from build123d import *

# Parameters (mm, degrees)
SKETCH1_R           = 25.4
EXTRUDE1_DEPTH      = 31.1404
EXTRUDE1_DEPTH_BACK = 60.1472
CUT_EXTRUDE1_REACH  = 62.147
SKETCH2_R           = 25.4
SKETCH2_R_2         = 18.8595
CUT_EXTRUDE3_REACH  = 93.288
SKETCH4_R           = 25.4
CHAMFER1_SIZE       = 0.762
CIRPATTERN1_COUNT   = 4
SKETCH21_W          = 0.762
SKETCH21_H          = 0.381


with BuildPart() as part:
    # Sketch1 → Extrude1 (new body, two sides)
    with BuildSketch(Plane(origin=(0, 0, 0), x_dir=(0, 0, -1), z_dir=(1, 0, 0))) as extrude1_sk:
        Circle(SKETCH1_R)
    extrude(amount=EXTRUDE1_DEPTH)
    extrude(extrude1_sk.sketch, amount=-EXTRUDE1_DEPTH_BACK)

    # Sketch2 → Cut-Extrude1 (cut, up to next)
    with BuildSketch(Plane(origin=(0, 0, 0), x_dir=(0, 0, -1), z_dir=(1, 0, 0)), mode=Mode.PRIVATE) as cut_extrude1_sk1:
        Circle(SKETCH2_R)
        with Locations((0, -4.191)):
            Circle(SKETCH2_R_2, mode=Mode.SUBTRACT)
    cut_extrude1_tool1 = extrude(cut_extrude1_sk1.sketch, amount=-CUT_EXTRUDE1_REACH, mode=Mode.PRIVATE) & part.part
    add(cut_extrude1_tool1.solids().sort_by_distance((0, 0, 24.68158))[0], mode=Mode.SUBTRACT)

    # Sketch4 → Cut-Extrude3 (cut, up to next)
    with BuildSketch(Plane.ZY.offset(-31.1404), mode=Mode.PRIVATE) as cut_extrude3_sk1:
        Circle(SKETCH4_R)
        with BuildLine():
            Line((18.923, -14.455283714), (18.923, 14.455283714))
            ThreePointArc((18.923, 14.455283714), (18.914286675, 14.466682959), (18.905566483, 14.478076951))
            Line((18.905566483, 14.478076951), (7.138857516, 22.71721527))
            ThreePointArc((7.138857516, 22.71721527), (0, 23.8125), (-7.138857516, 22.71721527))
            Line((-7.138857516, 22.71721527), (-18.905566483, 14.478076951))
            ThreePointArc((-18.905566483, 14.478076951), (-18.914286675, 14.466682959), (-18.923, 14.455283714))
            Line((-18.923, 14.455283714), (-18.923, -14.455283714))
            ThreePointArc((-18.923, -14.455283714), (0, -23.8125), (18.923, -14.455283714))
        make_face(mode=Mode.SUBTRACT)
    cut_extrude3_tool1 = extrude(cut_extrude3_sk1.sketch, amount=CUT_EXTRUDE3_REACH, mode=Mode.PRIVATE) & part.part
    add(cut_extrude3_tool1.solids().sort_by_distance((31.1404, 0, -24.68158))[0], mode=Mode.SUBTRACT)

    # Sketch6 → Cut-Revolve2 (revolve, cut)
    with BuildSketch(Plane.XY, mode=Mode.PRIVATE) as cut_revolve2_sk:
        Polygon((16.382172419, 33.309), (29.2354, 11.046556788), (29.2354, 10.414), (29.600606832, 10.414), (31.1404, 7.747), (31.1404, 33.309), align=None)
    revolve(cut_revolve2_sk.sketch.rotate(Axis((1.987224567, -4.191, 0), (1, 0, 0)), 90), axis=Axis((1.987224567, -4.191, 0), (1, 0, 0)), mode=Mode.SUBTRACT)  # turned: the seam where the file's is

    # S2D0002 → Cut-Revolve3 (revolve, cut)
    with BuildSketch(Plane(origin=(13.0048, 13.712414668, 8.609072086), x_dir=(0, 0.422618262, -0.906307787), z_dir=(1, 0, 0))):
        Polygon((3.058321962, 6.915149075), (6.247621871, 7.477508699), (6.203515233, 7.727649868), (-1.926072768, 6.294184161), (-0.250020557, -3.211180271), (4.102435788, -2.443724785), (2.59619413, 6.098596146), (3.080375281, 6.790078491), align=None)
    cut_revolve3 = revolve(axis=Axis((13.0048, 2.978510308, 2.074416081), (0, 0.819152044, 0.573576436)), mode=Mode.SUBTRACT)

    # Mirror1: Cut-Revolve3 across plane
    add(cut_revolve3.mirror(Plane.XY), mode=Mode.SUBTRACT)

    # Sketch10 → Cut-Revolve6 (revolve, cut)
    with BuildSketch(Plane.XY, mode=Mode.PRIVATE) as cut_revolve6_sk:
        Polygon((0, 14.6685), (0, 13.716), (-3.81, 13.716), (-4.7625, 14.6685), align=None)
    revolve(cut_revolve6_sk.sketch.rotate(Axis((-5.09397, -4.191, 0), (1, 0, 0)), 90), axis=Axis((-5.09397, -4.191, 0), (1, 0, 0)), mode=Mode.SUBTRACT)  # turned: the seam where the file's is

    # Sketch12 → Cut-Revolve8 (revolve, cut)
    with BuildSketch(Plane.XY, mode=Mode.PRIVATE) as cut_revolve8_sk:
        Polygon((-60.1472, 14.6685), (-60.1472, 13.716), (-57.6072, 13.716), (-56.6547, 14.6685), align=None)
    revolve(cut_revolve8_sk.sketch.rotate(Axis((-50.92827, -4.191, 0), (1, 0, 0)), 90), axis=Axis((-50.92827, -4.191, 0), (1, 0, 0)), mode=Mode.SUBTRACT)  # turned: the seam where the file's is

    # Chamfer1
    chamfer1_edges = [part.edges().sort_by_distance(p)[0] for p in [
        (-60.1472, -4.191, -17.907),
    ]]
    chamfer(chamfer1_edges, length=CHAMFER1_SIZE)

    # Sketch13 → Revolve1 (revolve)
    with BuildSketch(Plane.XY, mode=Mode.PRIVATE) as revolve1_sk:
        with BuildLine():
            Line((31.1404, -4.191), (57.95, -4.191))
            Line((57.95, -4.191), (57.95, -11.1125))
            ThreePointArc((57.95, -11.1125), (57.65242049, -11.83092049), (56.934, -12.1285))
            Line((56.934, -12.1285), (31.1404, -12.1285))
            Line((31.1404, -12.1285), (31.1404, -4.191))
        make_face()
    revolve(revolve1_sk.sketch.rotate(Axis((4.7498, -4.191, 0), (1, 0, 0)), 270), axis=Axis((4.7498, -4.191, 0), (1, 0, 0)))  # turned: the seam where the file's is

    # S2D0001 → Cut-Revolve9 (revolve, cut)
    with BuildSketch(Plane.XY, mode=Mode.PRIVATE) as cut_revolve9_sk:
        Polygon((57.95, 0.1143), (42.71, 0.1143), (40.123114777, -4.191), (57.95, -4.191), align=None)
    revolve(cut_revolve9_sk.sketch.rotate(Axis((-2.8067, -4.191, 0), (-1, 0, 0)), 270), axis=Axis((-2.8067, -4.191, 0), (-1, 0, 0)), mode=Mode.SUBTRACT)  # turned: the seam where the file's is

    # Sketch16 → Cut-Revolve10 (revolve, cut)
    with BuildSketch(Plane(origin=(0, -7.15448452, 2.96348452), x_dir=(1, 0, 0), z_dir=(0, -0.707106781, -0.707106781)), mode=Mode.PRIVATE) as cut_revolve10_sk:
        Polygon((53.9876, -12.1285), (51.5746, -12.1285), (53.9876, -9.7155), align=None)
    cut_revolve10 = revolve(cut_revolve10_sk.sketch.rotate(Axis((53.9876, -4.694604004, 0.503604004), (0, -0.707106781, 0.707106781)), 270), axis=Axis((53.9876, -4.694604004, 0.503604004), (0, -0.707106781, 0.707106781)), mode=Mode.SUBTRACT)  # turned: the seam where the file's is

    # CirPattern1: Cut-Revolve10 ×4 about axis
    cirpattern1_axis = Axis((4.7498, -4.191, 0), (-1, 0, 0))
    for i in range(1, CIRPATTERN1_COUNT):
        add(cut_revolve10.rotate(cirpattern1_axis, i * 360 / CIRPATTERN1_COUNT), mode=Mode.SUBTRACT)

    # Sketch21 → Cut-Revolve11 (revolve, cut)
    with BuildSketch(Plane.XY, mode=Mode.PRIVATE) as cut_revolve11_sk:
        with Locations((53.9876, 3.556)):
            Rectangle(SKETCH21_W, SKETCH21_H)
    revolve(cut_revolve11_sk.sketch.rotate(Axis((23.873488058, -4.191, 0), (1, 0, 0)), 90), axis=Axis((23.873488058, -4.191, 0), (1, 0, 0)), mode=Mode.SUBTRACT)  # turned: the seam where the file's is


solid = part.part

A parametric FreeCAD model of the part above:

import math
import FreeCAD as App
import Part
import Sketcher
Q = App.Units.Quantity


def edges_at(feature, points):
    """Names of the edges that pass closest to the given points."""
    edges = feature.Shape.Edges
    near = lambda p: min(range(len(edges)), key=lambda i: edges[i].distToShape(Part.Vertex(*p))[0])
    return sorted({f"Edge{near(p) + 1}" for p in points})

doc = App.newDocument("Part")
params = doc.addObject("Spreadsheet::Sheet", "Params")
for row, (alias, value) in enumerate([
    ("sketch1_diameter", "2 in"),
    ("pad1_length", "1.226 in"),
    ("pad1_length2", "2.368 in"),
    ("sketch2_diameter", "2 in"),
    ("sketch2_diameter2", "1.485 in"),
    ("sketch3_diameter", "2 in"),
    ("sketch3_radius", "0.9375 in"),
    ("groove_angle", "360 deg"),
    ("sketch5_length", "0.01 in"),
    ("sketch5_length2", "0.38 in"),
    ("sketch5_length3", "0.325 in"),
    ("sketch5_length4", "0.174 in"),
    ("sketch5_length5", "0.005 in"),
    ("groove2_angle", "360 deg"),
    ("sketch6_width", "0.15 in"),
    ("sketch6_width2", "0.1875 in"),
    ("groove3_angle", "360 deg"),
    ("sketch7_width", "0.1 in"),
    ("groove4_angle", "360 deg"),
    ("chamfer_size", "0.03 in"),
    ("sketch8_radius", "0.04 in"),
    ("sketch8_height", "0.3125 in"),
    ("revolution_angle", "360 deg"),
    ("sketch9_width", "0.6 in"),
    ("groove5_angle", "360 deg"),
    ("sketch10_width", "0.095 in"),
    ("groove6_angle", "360 deg"),
    ("sketch11_width", "0.03 in"),
    ("sketch11_height", "0.015 in"),
    ("groove7_angle", "360 deg"),
], start=1):
    params.set(f"A{row}", alias)
    params.set(f"B{row}", "=" + value)
    params.setAlias(f"B{row}", alias)

body = doc.addObject("PartDesign::Body", "Body")

sketch1 = body.newObject("Sketcher::SketchObject", "Sketch")
sketch1.AttachmentSupport = (doc.getObject("YZ_Plane"), [""])
sketch1.MapMode = "FlatFace"
sketch1.addGeometry(Part.Circle(App.Vector(0, 0, 0), App.Vector(0, 0, 1), 25.4), False)
sketch1.addConstraint([
    Sketcher.Constraint("Coincident", 0, 3, -1, 1),
    Sketcher.Constraint("Diameter", 0, Q("2 in")),
])
sketch1.setExpression("Constraints[1]", "Params.sketch1_diameter")
pad1 = body.newObject("PartDesign::Pad", "Pad")
pad1.Profile = sketch1
pad1.Type = "TwoLengths"
pad1.setExpression("Length", "Params.pad1_length")
pad1.setExpression("Length2", "Params.pad1_length2")

sketch2 = body.newObject("Sketcher::SketchObject", "Sketch001")
sketch2.AttachmentSupport = (doc.getObject("YZ_Plane"), [""])
sketch2.MapMode = "FlatFace"
sketch2.addGeometry([
    Part.Circle(App.Vector(0, 0, 0), App.Vector(0, 0, 1), 25.4),
    Part.Circle(App.Vector(-4.191, 0, 0), App.Vector(0, 0, 1), 18.8595),
], False)
sketch2.addConstraint([
    Sketcher.Constraint("Coincident", 0, 3, -1, 1),
    Sketcher.Constraint("PointOnObject", 1, 3, -1),
    Sketcher.Constraint("Diameter", 0, Q("2 in")),
    Sketcher.Constraint("Diameter", 1, Q("1.485 in")),
    Sketcher.Constraint("DistanceX", 1, 3, -1, 1, Q("0.165 in")),
])
sketch2.setExpression("Constraints[2]", "Params.sketch2_diameter")
sketch2.setExpression("Constraints[3]", "Params.sketch2_diameter2")
pocket1 = body.newObject("PartDesign::Pocket", "Pocket")
pocket1.Profile = sketch2
pocket1.Type = "UpToFirst"

sketch3 = body.newObject("Sketcher::SketchObject", "Sketch002")
sketch3.AttachmentSupport = (doc.getObject("YZ_Plane"), [""])
sketch3.MapMode = "FlatFace"
sketch3.AttachmentOffset = App.Placement(App.Vector(0, 0, 1.226 * 25.4), App.Rotation())
sketch3.addGeometry([
    Part.Circle(App.Vector(0, 0, 0), App.Vector(0, 0, 1), 25.4),
    Part.LineSegment(App.Vector(14.455284, 18.923, 0), App.Vector(-14.455284, 18.923, 0)),
    Part.ArcOfCircle(Part.Circle(App.Vector(0, 0, 0), App.Vector(0, 0, 1), 23.8125), math.radians(127.376217), math.radians(232.623783)),
    Part.LineSegment(App.Vector(-14.455284, -18.923, 0), App.Vector(14.455284, -18.923, 0)),
    Part.ArcOfCircle(Part.Circle(App.Vector(0.000919, -0.001202, 0), App.Vector(0, 0, 1), 23.810987), math.radians(-52.623785), math.radians(-52.554734)),
    Part.LineSegment(App.Vector(14.478077, -18.905566, 0), App.Vector(22.717215, -7.138858, 0)),
    Part.ArcOfCircle(Part.Circle(App.Vector(0, 0, 0), App.Vector(0, 0, 1), 23.8125), math.radians(-17.445263), math.radians(17.445263)),
    Part.LineSegment(App.Vector(22.717215, 7.138858, 0), App.Vector(14.478077, 18.905566, 0)),
    Part.ArcOfCircle(Part.Circle(App.Vector(0.000919, 0.001202, 0), App.Vector(0, 0, 1), 23.810987), math.radians(52.554734), math.radians(52.623785)),
], False)
sketch3.addConstraint([
    Sketcher.Constraint("Coincident", 1, 2, 2, 1),
    Sketcher.Constraint("Coincident", 2, 2, 3, 1),
    Sketcher.Constraint("Coincident", 3, 2, 4, 1),
    Sketcher.Constraint("Coincident", 4, 2, 5, 1),
    Sketcher.Constraint("Coincident", 5, 2, 6, 1),
    Sketcher.Constraint("Coincident", 6, 2, 7, 1),
    Sketcher.Constraint("Coincident", 7, 2, 8, 1),
    Sketcher.Constraint("Coincident", 8, 2, 1, 1),
    Sketcher.Constraint("Horizontal", 1),
    Sketcher.Constraint("Horizontal", 3),
    Sketcher.Constraint("Coincident", 0, 3, -1, 1),
    Sketcher.Constraint("Coincident", 2, 3, -1, 1),
    Sketcher.Constraint("Coincident", 6, 3, -1, 1),
    Sketcher.Constraint("Equal", 2, 6),
    Sketcher.Constraint("Equal", 4, 8),
    Sketcher.Constraint("Symmetric", 1, 2, 3, 2, -1, 1),
    Sketcher.Constraint("Symmetric", 4, 3, 8, 3, -1),
    Sketcher.Constraint("Vertical", 5, 2, 6, 2),
    Sketcher.Constraint("Vertical", 4, 2, 7, 2),
    Sketcher.Constraint("Diameter", 0, Q("2 in")),
    Sketcher.Constraint("Angle", 5, Q("55 deg")),
    Sketcher.Constraint("Radius", 2, Q("0.9375 in")),
    Sketcher.Constraint("DistanceY", -1, 1, 1, 2, Q("0.745 in")),
    Sketcher.Constraint("Radius", 4, 23.810987),
    Sketcher.Constraint("Distance", 5, 14.364499),
    Sketcher.Constraint("DistanceY", 4, 3, -1, 1, 0.001202),
])
sketch3.setExpression("Constraints[19]", "Params.sketch3_diameter")
sketch3.setExpression("Constraints[21]", "Params.sketch3_radius")
pocket2 = body.newObject("PartDesign::Pocket", "Pocket001")
pocket2.Profile = sketch3
pocket2.Type = "UpToFirst"

sketch4 = body.newObject("Sketcher::SketchObject", "Sketch003")
sketch4.AttachmentSupport = (doc.getObject("XY_Plane"), [""])
sketch4.MapMode = "FlatFace"
sketch4.addGeometry([
    Part.LineSegment(App.Vector(16.382172, 33.309, 0), App.Vector(29.2354, 11.046557, 0)),
    Part.LineSegment(App.Vector(29.2354, 11.046557, 0), App.Vector(29.2354, 10.414, 0)),
    Part.LineSegment(App.Vector(29.2354, 10.414, 0), App.Vector(29.600607, 10.414, 0)),
    Part.LineSegment(App.Vector(29.600607, 10.414, 0), App.Vector(31.1404, 7.747, 0)),
    Part.LineSegment(App.Vector(31.1404, 7.747, 0), App.Vector(31.1404, 33.309, 0)),
    Part.LineSegment(App.Vector(31.1404, 33.309, 0), App.Vector(16.382172, 33.309, 0)),
], False)
sketch4.addGeometry(Part.LineSegment(App.Vector(16.382172, -4.191, 0), App.Vector(31.1404, -4.191, 0)), True)
sketch4.addConstraint([
    Sketcher.Constraint("Coincident", 0, 2, 1, 1),
    Sketcher.Constraint("Coincident", 1, 2, 2, 1),
    Sketcher.Constraint("Coincident", 2, 2, 3, 1),
    Sketcher.Constraint("Coincident", 3, 2, 4, 1),
    Sketcher.Constraint("Coincident", 4, 2, 5, 1),
    Sketcher.Constraint("Coincident", 5, 2, 0, 1),
    Sketcher.Constraint("Vertical", 1),
    Sketcher.Constraint("Horizontal", 2),
    Sketcher.Constraint("Vertical", 4),
    Sketcher.Constraint("Horizontal", 5),
    Sketcher.Constraint("Horizontal", 6),
    Sketcher.Constraint("Parallel", 0, 3),
    Sketcher.Constraint("Vertical", 5, 2, 6, 1),
    Sketcher.Constraint("Vertical", 4, 2, 6, 2),
    Sketcher.Constraint("Angle", 0, Q("-60 deg")),
    Sketcher.Constraint("DistanceY", -1, 1, 1, 2, Q("0.41 in")),
    Sketcher.Constraint("DistanceY", 6, 1, 3, 2, Q("0.47 in")),
    Sketcher.Constraint("DistanceX", -1, 1, 0, 2, Q("1.151 in")),
    Sketcher.Constraint("DistanceX", -1, 1, 3, 2, Q("1.226 in")),
    Sketcher.Constraint("DistanceY", -1, 1, 3, 2, Q("0.305 in")),
    Sketcher.Constraint("DistanceY", 4, 1, 4, 2, 25.562),
    Sketcher.Constraint("DistanceX", 5, 2, 5, 1, 14.758228),
])
groove = body.newObject("PartDesign::Groove", "Groove")
groove.Profile = sketch4
groove.ReferenceAxis = (sketch4, ["Axis0"])
groove.setExpression("Angle", "Params.groove_angle")

sketch5 = body.newObject("Sketcher::SketchObject", "Sketch004")
sketch5.AttachmentSupport = (doc.getObject("YZ_Plane"), [""])
sketch5.MapMode = "FlatFace"
sketch5.AttachmentOffset = App.Placement(App.Vector(0, 0, 0.512 * 25.4), App.Rotation())
sketch5.addGeometry([
    Part.LineSegment(App.Vector(21.272171, 8.759759, 0), App.Vector(23.129698, 6.106935, 0)),
    Part.LineSegment(App.Vector(23.129698, 6.106935, 0), App.Vector(23.337763, 6.252624, 0)),
    Part.LineSegment(App.Vector(23.337763, 6.252624, 0), App.Vector(18.602889, 13.014724, 0)),
    Part.LineSegment(App.Vector(18.602889, 13.014724, 0), App.Vector(10.696434, 7.478564, 0)),
    Part.LineSegment(App.Vector(10.696434, 7.478564, 0), App.Vector(13.231412, 3.85824, 0)),
    Part.LineSegment(App.Vector(13.231412, 3.85824, 0), App.Vector(20.336819, 8.833499, 0)),
    Part.LineSegment(App.Vector(20.336819, 8.833499, 0), App.Vector(21.168139, 8.686915, 0)),
    Part.LineSegment(App.Vector(21.168139, 8.686915, 0), App.Vector(21.272171, 8.759759, 0)),
], False)
sketch5.addGeometry(Part.LineSegment(App.Vector(10.696434, 7.478564, 0), App.Vector(18.602889, 13.014724, 0)), True)
sketch5.addConstraint([
    Sketcher.Constraint("Coincident", 0, 2, 1, 1),
    Sketcher.Constraint("Coincident", 1, 2, 2, 1),
    Sketcher.Constraint("Coincident", 2, 2, 3, 1),
    Sketcher.Constraint("Coincident", 3, 2, 4, 1),
    Sketcher.Constraint("Coincident", 4, 2, 5, 1),
    Sketcher.Constraint("Coincident", 5, 2, 6, 1),
    Sketcher.Constraint("Coincident", 6, 2, 7, 1),
    Sketcher.Constraint("Coincident", 7, 2, 0, 1),
    Sketcher.Constraint("Coincident", 8, 1, 3, 2),
    Sketcher.Constraint("Coincident", 8, 2, 2, 2),
    Sketcher.Constraint("Perpendicular", 0, 1),
    Sketcher.Constraint("Perpendicular", 1, 2),
    Sketcher.Constraint("Perpendicular", 2, 3),
    Sketcher.Constraint("Perpendicular", 3, 4),
    Sketcher.Constraint("Perpendicular", 4, 5),
    Sketcher.Constraint("Parallel", 5, 7),
    Sketcher.Constraint("Angle", 0, Q("-55 deg")),
    Sketcher.Constraint("Angle", 6, Q("-10 deg")),
    Sketcher.Constraint("Distance", 1, Q("0.01 in")),
    Sketcher.Constraint("Distance", 3, Q("0.38 in")),
    Sketcher.Constraint("Distance", 2, Q("0.325 in")),
    Sketcher.Constraint("Distance", 4, Q("0.174 in")),
    Sketcher.Constraint("Distance", 7, Q("0.005 in")),
    Sketcher.Constraint("Distance", 0, Q("0.1275 in")),
    Sketcher.Constraint("DistanceX", -1, 1, 0, 2, 23.129698),
    Sketcher.Constraint("DistanceY", -1, 1, 5, 2, 8.833499),
])
sketch5.setExpression("Constraints[18]", "Params.sketch5_length")
sketch5.setExpression("Constraints[19]", "Params.sketch5_length2")
sketch5.setExpression("Constraints[20]", "Params.sketch5_length3")
sketch5.setExpression("Constraints[21]", "Params.sketch5_length4")
sketch5.setExpression("Constraints[22]", "Params.sketch5_length5")
groove2 = body.newObject("PartDesign::Groove", "Groove001")
groove2.Profile = sketch5
groove2.ReferenceAxis = (sketch5, ["Axis0"])
groove2.setExpression("Angle", "Params.groove2_angle")
doc.recompute()

mirrored = body.newObject("PartDesign::Mirrored", "Mirrored")
mirrored.Originals = [groove2]
mirrored.MirrorPlane = (doc.getObject("XY_Plane"), [""])
body.Tip = mirrored

sketch6 = body.newObject("Sketcher::SketchObject", "Sketch005")
sketch6.AttachmentSupport = (doc.getObject("XY_Plane"), [""])
sketch6.MapMode = "FlatFace"
sketch6.addGeometry([
    Part.LineSegment(App.Vector(0, 13.716, 0), App.Vector(0, 14.6685, 0)),
    Part.LineSegment(App.Vector(0, 14.6685, 0), App.Vector(-4.7625, 14.6685, 0)),
    Part.LineSegment(App.Vector(-4.7625, 14.6685, 0), App.Vector(-3.81, 13.716, 0)),
    Part.LineSegment(App.Vector(-3.81, 13.716, 0), App.Vector(0, 13.716, 0)),
], False)
sketch6.addGeometry(Part.LineSegment(App.Vector(-4.7625, -4.191, 0), App.Vector(0, -4.191, 0)), True)
sketch6.addConstraint([
    Sketcher.Constraint("Coincident", 0, 2, 1, 1),
    Sketcher.Constraint("Coincident", 1, 2, 2, 1),
    Sketcher.Constraint("Coincident", 2, 2, 3, 1),
    Sketcher.Constraint("Coincident", 3, 2, 0, 1),
    Sketcher.Constraint("Vertical", 0),
    Sketcher.Constraint("Horizontal", 1),
    Sketcher.Constraint("Horizontal", 3),
    Sketcher.Constraint("Horizontal", 4),
    Sketcher.Constraint("PointOnObject", 0, 2, -2),
    Sketcher.Constraint("PointOnObject", 4, 2, -2),
    Sketcher.Constraint("Vertical", 1, 2, 4, 1),
    Sketcher.Constraint("Angle", 2, Q("-45 deg")),
    Sketcher.Constraint("DistanceX", 3, 1, 3, 2, Q("0.15 in")),
    Sketcher.Constraint("DistanceX", 1, 2, 1, 1, Q("0.1875 in")),
    Sketcher.Constraint("DistanceY", -1, 1, 2, 2, Q("0.54 in")),
    Sketcher.Constraint("DistanceY", 4, 1, -1, 1, Q("0.165 in")),
])
sketch6.setExpression("Constraints[12]", "Params.sketch6_width")
sketch6.setExpression("Constraints[13]", "Params.sketch6_width2")
groove3 = body.newObject("PartDesign::Groove", "Groove002")
groove3.Profile = sketch6
groove3.ReferenceAxis = (sketch6, ["Axis0"])
groove3.setExpression("Angle", "Params.groove3_angle")

sketch7 = body.newObject("Sketcher::SketchObject", "Sketch006")
sketch7.AttachmentSupport = (doc.getObject("XY_Plane"), [""])
sketch7.MapMode = "FlatFace"
sketch7.addGeometry([
    Part.LineSegment(App.Vector(-60.1472, 14.6685, 0), App.Vector(-60.1472, 13.716, 0)),
    Part.LineSegment(App.Vector(-60.1472, 13.716, 0), App.Vector(-57.6072, 13.716, 0)),
    Part.LineSegment(App.Vector(-57.6072, 13.716, 0), App.Vector(-56.6547, 14.6685, 0)),
    Part.LineSegment(App.Vector(-56.6547, 14.6685, 0), App.Vector(-60.1472, 14.6685, 0)),
], False)
sketch7.addGeometry(Part.LineSegment(App.Vector(-60.1472, -4.191, 0), App.Vector(-56.6547, -4.191, 0)), True)
sketch7.addConstraint([
    Sketcher.Constraint("Coincident", 0, 2, 1, 1),
    Sketcher.Constraint("Coincident", 1, 2, 2, 1),
    Sketcher.Constraint("Coincident", 2, 2, 3, 1),
    Sketcher.Constraint("Coincident", 3, 2, 0, 1),
    Sketcher.Constraint("Vertical", 0),
    Sketcher.Constraint("Horizontal", 1),
    Sketcher.Constraint("Horizontal", 3),
    Sketcher.Constraint("Horizontal", 4),
    Sketcher.Constraint("Vertical", 3, 2, 4, 1),
    Sketcher.Constraint("Vertical", 2, 2, 4, 2),
    Sketcher.Constraint("DistanceX", 1, 1, 1, 2, Q("0.1 in")),
    Sketcher.Constraint("Angle", 2, Q("45 deg")),
    Sketcher.Constraint("DistanceY", -1, 1, 0, 2, Q("0.54 in")),
    Sketcher.Constraint("DistanceX", 3, 2, 3, 1, Q("0.1375 in")),
    Sketcher.Constraint("DistanceX", 0, 2, -1, 1, Q("2.368 in")),
    Sketcher.Constraint("DistanceY", 4, 1, -1, 1, Q("0.165 in")),
])
sketch7.setExpression("Constraints[10]", "Params.sketch7_width")
groove4 = body.newObject("PartDesign::Groove", "Groove003")
groove4.Profile = sketch7
groove4.ReferenceAxis = (sketch7, ["Axis0"])
groove4.setExpression("Angle", "Params.groove4_angle")
doc.recompute()

chamfer = body.newObject("PartDesign::Chamfer", "Chamfer")
chamfer.Base = (groove4, edges_at(groove4, [(-60.147, -4.191, -17.907)]))
chamfer.setExpression("Size", "Params.chamfer_size")

sketch8 = body.newObject("Sketcher::SketchObject", "Sketch007")
sketch8.AttachmentSupport = (doc.getObject("XY_Plane"), [""])
sketch8.MapMode = "FlatFace"
sketch8.addGeometry([
    Part.LineSegment(App.Vector(57.95, -4.191, 0), App.Vector(31.1404, -4.191, 0)),
    Part.LineSegment(App.Vector(31.1404, -4.191, 0), App.Vector(31.1404, -12.1285, 0)),
    Part.LineSegment(App.Vector(31.1404, -12.1285, 0), App.Vector(56.934, -12.1285, 0)),
    Part.ArcOfCircle(Part.Circle(App.Vector(56.934, -11.1125, 0), App.Vector(0, 0, 1), 1.016), math.radians(-90), math.radians(0)),
    Part.LineSegment(App.Vector(57.95, -11.1125, 0), App.Vector(57.95, -4.191, 0)),
], False)
sketch8.addGeometry(Part.LineSegment(App.Vector(31.1404, -4.191, 0), App.Vector(57.95, -4.191, 0)), True)
sketch8.addConstraint([
    Sketcher.Constraint("Coincident", 0, 2, 1, 1),
    Sketcher.Constraint("Coincident", 1, 2, 2, 1),
    Sketcher.Constraint("Tangent", 2, 2, 3, 1),
    Sketcher.Constraint("Tangent", 3, 2, 4, 1),
    Sketcher.Constraint("Coincident", 4, 2, 0, 1),
    Sketcher.Constraint("Horizontal", 0),
    Sketcher.Constraint("Vertical", 1),
    Sketcher.Constraint("Horizontal", 2),
    Sketcher.Constraint("Vertical", 4),
    Sketcher.Constraint("Horizontal", 5),
    Sketcher.Constraint("Coincident", 5, 1, 0, 2),
    Sketcher.Constraint("Vertical", 3, 2, 5, 2),
    Sketcher.Constraint("Radius", 3, Q("0.04 in")),
    Sketcher.Constraint("DistanceY", 1, 2, 1, 1, Q("0.3125 in")),
    Sketcher.Constraint("DistanceY", 3, 3, -1, 1, Q("0.4375 in")),
    Sketcher.Constraint("DistanceX", -1, 1, 0, 2, Q("1.226 in")),
    Sketcher.Constraint("DistanceX", 0, 2, 0, 1, 26.8096),
])
sketch8.setExpression("Constraints[12]", "Params.sketch8_radius")
sketch8.setExpression("Constraints[13]", "Params.sketch8_height")
revolution = body.newObject("PartDesign::Revolution", "Revolution")
revolution.Profile = sketch8
revolution.ReferenceAxis = (sketch8, ["Axis0"])
revolution.setExpression("Angle", "Params.revolution_angle")

sketch9 = body.newObject("Sketcher::SketchObject", "Sketch008")
sketch9.AttachmentSupport = (doc.getObject("XY_Plane"), [""])
sketch9.MapMode = "FlatFace"
sketch9.addGeometry([
    Part.LineSegment(App.Vector(57.95, 0.1143, 0), App.Vector(42.71, 0.1143, 0)),
    Part.LineSegment(App.Vector(42.71, 0.1143, 0), App.Vector(40.123115, -4.191, 0)),
    Part.LineSegment(App.Vector(40.123115, -4.191, 0), App.Vector(57.95, -4.191, 0)),
    Part.LineSegment(App.Vector(57.95, -4.191, 0), App.Vector(57.95, 0.1143, 0)),
], False)
sketch9.addGeometry(Part.LineSegment(App.Vector(57.95, -4.191, 0), App.Vector(40.123115, -4.191, 0)), True)
sketch9.addConstraint([
    Sketcher.Constraint("Coincident", 0, 2, 1, 1),
    Sketcher.Constraint("Coincident", 1, 2, 2, 1),
    Sketcher.Constraint("Coincident", 2, 2, 3, 1),
    Sketcher.Constraint("Coincident", 3, 2, 0, 1),
    Sketcher.Constraint("Horizontal", 0),
    Sketcher.Constraint("Horizontal", 2),
    Sketcher.Constraint("Vertical", 3),
    Sketcher.Constraint("Horizontal", 4),
    Sketcher.Constraint("Coincident", 4, 1, 2, 2),
    Sketcher.Constraint("Equal", 2, 4),
    Sketcher.Constraint("DistanceX", 0, 2, 0, 1, Q("0.6 in")),
    Sketcher.Constraint("Angle", 1, Q("-121 deg")),
    Sketcher.Constraint("DistanceY", 3, 1, 3, 2, Q("0.1695 in")),
    Sketcher.Constraint("DistanceY", 1, 2, -1, 1, Q("0.165 in")),
    Sketcher.Constraint("DistanceX", -1, 1, 0, 2, 42.71),
])
sketch9.setExpression("Constraints[10]", "Params.sketch9_width")
groove5 = body.newObject("PartDesign::Groove", "Groove004")
groove5.Profile = sketch9
groove5.ReferenceAxis = (sketch9, ["Axis0"])
groove5.setExpression("Angle", "Params.groove5_angle")

sketch10 = body.newObject("Sketcher::SketchObject", "Sketch009")
sketch10.Placement = App.Placement(App.Vector(0, -7.154485, 2.963485), App.Rotation(App.Vector(1, 0, 0), App.Vector(0, -0.707106781, 0.707106781), App.Vector(0, -0.707106781, -0.707106781), "ZXY"))
sketch10.addGeometry([
    Part.LineSegment(App.Vector(51.5746, -12.1285, 0), App.Vector(53.9876, -12.1285, 0)),
    Part.LineSegment(App.Vector(53.9876, -12.1285, 0), App.Vector(53.9876, -9.7155, 0)),
    Part.LineSegment(App.Vector(53.9876, -9.7155, 0), App.Vector(51.5746, -12.1285, 0)),
], False)
sketch10.addGeometry(Part.LineSegment(App.Vector(53.9876, -12.1285, 0), App.Vector(53.9876, -9.7155, 0)), True)
sketch10.addConstraint([
    Sketcher.Constraint("Coincident", 0, 2, 1, 1),
    Sketcher.Constraint("Coincident", 1, 2, 2, 1),
    Sketcher.Constraint("Coincident", 2, 2, 0, 1),
    Sketcher.Constraint("Horizontal", 0),
    Sketcher.Constraint("Vertical", 1),
    Sketcher.Constraint("Vertical", 3),
    Sketcher.Constraint("Coincident", 3, 1, 0, 2),
    Sketcher.Constraint("Equal", 0, 1),
    Sketcher.Constraint("Equal", 1, 3),
    Sketcher.Constraint("DistanceX", 0, 1, 0, 2, Q("0.095 in")),
    Sketcher.Constraint("DistanceY", 0, 2, -1, 1, Q("0.4775 in")),
    Sketcher.Constraint("DistanceX", -1, 1, 0, 2, 53.9876),
])
sketch10.setExpression("Constraints[9]", "Params.sketch10_width")
groove6 = body.newObject("PartDesign::Groove", "Groove005")
groove6.Profile = sketch10
groove6.ReferenceAxis = (sketch10, ["Axis0"])
groove6.setExpression("Angle", "Params.groove6_angle")
doc.recompute()

datumline = body.newObject("PartDesign::Line", "DatumLine")
datumline.Placement = App.Placement(App.Vector(0, -4.191, 0), App.Rotation(App.Vector(0, 0, 1), App.Vector(-1, 0, 0)))
polarpattern = body.newObject("PartDesign::PolarPattern", "PolarPattern")
polarpattern.Originals = [groove6]
polarpattern.Axis = (datumline, [""])
polarpattern.Angle = 360
polarpattern.Occurrences = 4
body.Tip = polarpattern

sketch11 = body.newObject("Sketcher::SketchObject", "Sketch010")
sketch11.AttachmentSupport = (doc.getObject("XY_Plane"), [""])
sketch11.MapMode = "FlatFace"
sketch11.addGeometry([
    Part.LineSegment(App.Vector(53.6066, 3.7465, 0), App.Vector(53.6066, 3.3655, 0)),
    Part.LineSegment(App.Vector(53.6066, 3.3655, 0), App.Vector(54.3686, 3.3655, 0)),
    Part.LineSegment(App.Vector(54.3686, 3.3655, 0), App.Vector(54.3686, 3.7465, 0)),
    Part.LineSegment(App.Vector(54.3686, 3.7465, 0), App.Vector(53.6066, 3.7465, 0)),
], False)
sketch11.addGeometry(Part.LineSegment(App.Vector(53.6066, -4.191, 0), App.Vector(54.3686, -4.191, 0)), True)
sketch11.addConstraint([
    Sketcher.Constraint("Coincident", 0, 2, 1, 1),
    Sketcher.Constraint("Coincident", 1, 2, 2, 1),
    Sketcher.Constraint("Coincident", 2, 2, 3, 1),
    Sketcher.Constraint("Coincident", 3, 2, 0, 1),
    Sketcher.Constraint("Vertical", 0),
    Sketcher.Constraint("Horizontal", 1),
    Sketcher.Constraint("Vertical", 2),
    Sketcher.Constraint("Horizontal", 3),
    Sketcher.Constraint("Horizontal", 4),
    Sketcher.Constraint("Vertical", 3, 2, 4, 1),
    Sketcher.Constraint("Vertical", 2, 2, 4, 2),
    Sketcher.Constraint("DistanceX", 1, 1, 1, 2, Q("0.03 in")),
    Sketcher.Constraint("DistanceY", 0, 2, 0, 1, Q("0.015 in")),
    Sketcher.Constraint("DistanceY", 4, 1, -1, 1, Q("0.165 in")),
    Sketcher.Constraint("DistanceY", 4, 1, 3, 2, Q("0.3125 in")),
    Sketcher.Constraint("DistanceX", -1, 1, 0, 2, 53.6066),
])
sketch11.setExpression("Constraints[11]", "Params.sketch11_width")
sketch11.setExpression("Constraints[12]", "Params.sketch11_height")
groove7 = body.newObject("PartDesign::Groove", "Groove006")
groove7.Profile = sketch11
groove7.ReferenceAxis = (sketch11, ["Axis0"])
groove7.setExpression("Angle", "Params.groove7_angle")

doc.recompute()
